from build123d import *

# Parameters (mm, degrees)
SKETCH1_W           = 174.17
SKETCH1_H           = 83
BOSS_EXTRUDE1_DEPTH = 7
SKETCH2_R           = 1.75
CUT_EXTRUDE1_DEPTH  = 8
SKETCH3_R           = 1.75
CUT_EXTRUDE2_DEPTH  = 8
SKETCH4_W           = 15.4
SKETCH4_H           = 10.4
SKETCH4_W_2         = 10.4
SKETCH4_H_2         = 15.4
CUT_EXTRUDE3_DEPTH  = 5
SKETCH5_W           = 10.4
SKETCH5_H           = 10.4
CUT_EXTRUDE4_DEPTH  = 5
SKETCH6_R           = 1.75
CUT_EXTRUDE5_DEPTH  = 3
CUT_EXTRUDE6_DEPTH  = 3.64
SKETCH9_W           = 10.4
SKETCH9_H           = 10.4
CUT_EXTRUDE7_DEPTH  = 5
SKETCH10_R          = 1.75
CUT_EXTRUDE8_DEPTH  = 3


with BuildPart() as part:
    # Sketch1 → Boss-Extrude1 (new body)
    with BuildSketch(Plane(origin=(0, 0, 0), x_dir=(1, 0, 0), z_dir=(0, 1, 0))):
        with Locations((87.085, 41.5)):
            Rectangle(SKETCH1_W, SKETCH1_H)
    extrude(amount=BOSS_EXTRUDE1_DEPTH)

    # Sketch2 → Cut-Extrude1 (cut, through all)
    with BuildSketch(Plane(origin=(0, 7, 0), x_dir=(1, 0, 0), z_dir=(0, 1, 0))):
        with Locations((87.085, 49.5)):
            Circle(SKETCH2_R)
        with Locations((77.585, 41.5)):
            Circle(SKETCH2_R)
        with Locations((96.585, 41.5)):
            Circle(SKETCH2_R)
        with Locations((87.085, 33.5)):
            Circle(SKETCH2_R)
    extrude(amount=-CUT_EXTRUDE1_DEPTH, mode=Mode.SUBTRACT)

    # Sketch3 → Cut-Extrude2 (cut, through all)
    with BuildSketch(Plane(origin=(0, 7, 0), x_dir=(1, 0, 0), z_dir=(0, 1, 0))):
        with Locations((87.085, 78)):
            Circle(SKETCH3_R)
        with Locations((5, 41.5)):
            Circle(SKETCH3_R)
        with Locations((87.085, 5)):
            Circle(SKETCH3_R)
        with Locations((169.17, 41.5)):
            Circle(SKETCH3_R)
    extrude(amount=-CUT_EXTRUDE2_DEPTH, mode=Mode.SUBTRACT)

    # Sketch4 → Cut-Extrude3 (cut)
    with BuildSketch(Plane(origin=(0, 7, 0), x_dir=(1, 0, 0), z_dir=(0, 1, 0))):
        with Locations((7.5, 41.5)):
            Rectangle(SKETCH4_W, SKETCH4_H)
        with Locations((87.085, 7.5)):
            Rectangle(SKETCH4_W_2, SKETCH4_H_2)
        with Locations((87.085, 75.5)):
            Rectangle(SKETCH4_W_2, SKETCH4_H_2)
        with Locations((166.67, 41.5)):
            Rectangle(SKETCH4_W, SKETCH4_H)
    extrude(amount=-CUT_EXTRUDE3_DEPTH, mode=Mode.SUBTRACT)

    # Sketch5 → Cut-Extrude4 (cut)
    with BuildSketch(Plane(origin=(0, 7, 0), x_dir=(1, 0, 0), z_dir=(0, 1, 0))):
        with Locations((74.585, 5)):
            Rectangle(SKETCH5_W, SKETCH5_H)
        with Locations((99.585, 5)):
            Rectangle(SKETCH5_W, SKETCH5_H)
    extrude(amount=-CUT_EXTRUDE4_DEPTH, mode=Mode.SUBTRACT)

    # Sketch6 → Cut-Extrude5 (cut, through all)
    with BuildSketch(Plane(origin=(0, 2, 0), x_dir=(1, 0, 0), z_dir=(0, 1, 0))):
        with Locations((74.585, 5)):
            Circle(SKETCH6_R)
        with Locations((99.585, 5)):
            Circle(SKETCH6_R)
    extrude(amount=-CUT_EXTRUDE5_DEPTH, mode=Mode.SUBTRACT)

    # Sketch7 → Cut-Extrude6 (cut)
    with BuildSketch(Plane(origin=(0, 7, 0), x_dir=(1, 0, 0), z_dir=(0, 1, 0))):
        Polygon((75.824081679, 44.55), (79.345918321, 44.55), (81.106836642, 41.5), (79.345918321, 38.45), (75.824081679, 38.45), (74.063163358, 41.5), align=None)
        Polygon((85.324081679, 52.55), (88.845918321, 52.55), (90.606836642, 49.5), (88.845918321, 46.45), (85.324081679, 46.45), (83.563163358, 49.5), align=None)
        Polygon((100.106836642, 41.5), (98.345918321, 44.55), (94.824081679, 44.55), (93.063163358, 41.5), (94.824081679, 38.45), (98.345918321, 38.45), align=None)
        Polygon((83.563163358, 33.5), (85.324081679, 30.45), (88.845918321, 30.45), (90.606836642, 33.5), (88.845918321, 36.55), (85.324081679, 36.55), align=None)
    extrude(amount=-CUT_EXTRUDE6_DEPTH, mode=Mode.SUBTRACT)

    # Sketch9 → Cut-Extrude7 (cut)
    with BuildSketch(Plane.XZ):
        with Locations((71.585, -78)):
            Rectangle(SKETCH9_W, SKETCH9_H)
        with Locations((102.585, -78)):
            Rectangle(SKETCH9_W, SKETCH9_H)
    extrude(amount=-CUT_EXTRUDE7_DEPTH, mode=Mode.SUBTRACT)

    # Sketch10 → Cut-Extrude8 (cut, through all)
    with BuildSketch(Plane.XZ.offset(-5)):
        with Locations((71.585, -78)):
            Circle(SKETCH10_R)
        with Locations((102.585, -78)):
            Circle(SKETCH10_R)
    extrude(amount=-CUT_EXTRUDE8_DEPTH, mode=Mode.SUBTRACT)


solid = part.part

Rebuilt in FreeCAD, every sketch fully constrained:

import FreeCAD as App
import Part
import Sketcher
from FreeCAD import Vector
Q = App.Units.Quantity

doc = App.newDocument("Part")
body = doc.addObject("PartDesign::Body", "Body")

# Sketch on XZ plane
sketch1 = doc.addObject("Sketcher::SketchObject", "Sketch")
body.addObject(sketch1)
sketch1.AttachmentSupport = (doc.XZ_Plane, [""])
sketch1.MapMode = "FlatFace"
sketch1.addGeometry(Part.LineSegment(Vector(0, -83, 0), Vector(0, 0, 0)), False)
sketch1.addGeometry(Part.LineSegment(Vector(0, 0, 0), Vector(174, 0, 0)), False)
sketch1.addGeometry(Part.LineSegment(Vector(174, 0, 0), Vector(174, -83, 0)), False)
sketch1.addGeometry(Part.LineSegment(Vector(174, -83, 0), Vector(0, -83, 0)), False)
sketch1.addConstraint(Sketcher.Constraint("Coincident", 0, 2, 1, 1))
sketch1.addConstraint(Sketcher.Constraint("Coincident", 1, 2, 2, 1))
sketch1.addConstraint(Sketcher.Constraint("Coincident", 2, 2, 3, 1))
sketch1.addConstraint(Sketcher.Constraint("Coincident", 3, 2, 0, 1))
sketch1.addConstraint(Sketcher.Constraint("Vertical", 0))
sketch1.addConstraint(Sketcher.Constraint("Horizontal", 1))
sketch1.addConstraint(Sketcher.Constraint("Vertical", 2))
sketch1.addConstraint(Sketcher.Constraint("Horizontal", 3))
sketch1.addConstraint(Sketcher.Constraint("Coincident", 0, 2, -1, 1))
sketch1.addConstraint(Sketcher.Constraint("DistanceY", 0, 1, 0, 2, Q("83 mm")))
sketch1.addConstraint(Sketcher.Constraint("DistanceX", 1, 1, 1, 2, Q("174.17 mm")))
pad1 = doc.addObject("PartDesign::Pad", "Pad")
body.addObject(pad1)
pad1.Profile = sketch1
pad1.Length = 7
pad1.Reversed = True

# Sketch on XZ plane
sketch2 = doc.addObject("Sketcher::SketchObject", "Sketch001")
body.addObject(sketch2)
sketch2.AttachmentSupport = (doc.XZ_Plane, [""])
sketch2.MapMode = "FlatFace"
sketch2.AttachmentOffset = App.Placement(Vector(0, 0, -7), App.Rotation())
sketch2.addGeometry(Part.Circle(Vector(87.1, -49.5, 0), Vector(0, 0, 1), 1.8), False)
sketch2.addGeometry(Part.Circle(Vector(77.6, -41.5, 0), Vector(0, 0, 1), 1.8), False)
sketch2.addGeometry(Part.Circle(Vector(96.6, -41.5, 0), Vector(0, 0, 1), 1.8), False)
sketch2.addGeometry(Part.Circle(Vector(87.1, -33.5, 0), Vector(0, 0, 1), 1.8), False)
sketch2.addConstraint(Sketcher.Constraint("Equal", 0, 1))
sketch2.addConstraint(Sketcher.Constraint("Equal", 1, 2))
sketch2.addConstraint(Sketcher.Constraint("Equal", 2, 3))
sketch2.addConstraint(Sketcher.Constraint("Horizontal", 1, 3, 2, 3))
sketch2.addConstraint(Sketcher.Constraint("Vertical", 0, 3, 3, 3))
sketch2.addConstraint(Sketcher.Constraint("Diameter", 0, Q("3.5 mm")))
sketch2.addConstraint(Sketcher.Constraint("DistanceY", 0, 3, 1, 3, Q("8 mm")))
sketch2.addConstraint(Sketcher.Constraint("DistanceX", 1, 3, 2, 3, Q("19 mm")))
sketch2.addConstraint(Sketcher.Constraint("DistanceY", 1, 3, 3, 3, Q("8 mm")))
sketch2.addConstraint(Sketcher.Constraint("DistanceY", 0, 3, -1, 1, Q("49.5 mm")))
sketch2.addConstraint(Sketcher.Constraint("DistanceX", 1, 3, 0, 3, Q("9.5 mm")))
sketch2.addConstraint(Sketcher.Constraint("DistanceX", -1, 1, 0, 3, Q("87.085 mm")))
pocket1 = doc.addObject("PartDesign::Pocket", "Pocket")
body.addObject(pocket1)
pocket1.Profile = sketch2
pocket1.Type = "ThroughAll"
pocket1.Reversed = True

# Sketch on XZ plane
sketch3 = doc.addObject("Sketcher::SketchObject", "Sketch002")
body.addObject(sketch3)
sketch3.AttachmentSupport = (doc.XZ_Plane, [""])
sketch3.MapMode = "FlatFace"
sketch3.AttachmentOffset = App.Placement(Vector(0, 0, -7), App.Rotation())
sketch3.addGeometry(Part.Circle(Vector(87.1, -78, 0), Vector(0, 0, 1), 1.8), False)
sketch3.addGeometry(Part.Circle(Vector(5, -41.5, 0), Vector(0, 0, 1), 1.8), False)
sketch3.addGeometry(Part.Circle(Vector(87.1, -5, 0), Vector(0, 0, 1), 1.8), False)
sketch3.addGeometry(Part.Circle(Vector(169.2, -41.5, 0), Vector(0, 0, 1), 1.8), False)
sketch3.addConstraint(Sketcher.Constraint("Equal", 0, 1))
sketch3.addConstraint(Sketcher.Constraint("Equal", 1, 2))
sketch3.addConstraint(Sketcher.Constraint("Equal", 2, 3))
sketch3.addConstraint(Sketcher.Constraint("Horizontal", 1, 3, 3, 3))
sketch3.addConstraint(Sketcher.Constraint("Vertical", 0, 3, 2, 3))
sketch3.addConstraint(Sketcher.Constraint("Diameter", 0, Q("3.5 mm")))
sketch3.addConstraint(Sketcher.Constraint("DistanceY", 0, 3, -1, 1, Q("78 mm")))
sketch3.addConstraint(Sketcher.Constraint("DistanceX", -1, 1, 1, 3, Q("5 mm")))
sketch3.addConstraint(Sketcher.Constraint("DistanceY", 2, 3, -1, 1, Q("5 mm")))
sketch3.addConstraint(Sketcher.Constraint("DistanceY", 1, 3, -1, 1, Q("41.5 mm")))
sketch3.addConstraint(Sketcher.Constraint("DistanceX", -1, 1, 3, 3, Q("169.17 mm")))
sketch3.addConstraint(Sketcher.Constraint("DistanceX", -1, 1, 0, 3, Q("87.085 mm")))
pocket2 = doc.addObject("PartDesign::Pocket", "Pocket001")
body.addObject(pocket2)
pocket2.Profile = sketch3
pocket2.Type = "ThroughAll"
pocket2.Reversed = True

# Sketch on XZ plane
sketch4 = doc.addObject("Sketcher::SketchObject", "Sketch003")
body.addObject(sketch4)
sketch4.AttachmentSupport = (doc.XZ_Plane, [""])
sketch4.MapMode = "FlatFace"
sketch4.AttachmentOffset = App.Placement(Vector(0, 0, -7), App.Rotation())
sketch4.addGeometry(Part.LineSegment(Vector(0, -47, 0), Vector(0, -36, 0)), False)
sketch4.addGeometry(Part.LineSegment(Vector(0, -36, 0), Vector(15, -36, 0)), False)
sketch4.addGeometry(Part.LineSegment(Vector(15, -36, 0), Vector(15, -47, 0)), False)
sketch4.addGeometry(Part.LineSegment(Vector(15, -47, 0), Vector(0, -47, 0)), False)
sketch4.addGeometry(Part.LineSegment(Vector(82, -15, 0), Vector(82, 0, 0)), False)
sketch4.addGeometry(Part.LineSegment(Vector(82, 0, 0), Vector(92, 0, 0)), False)
sketch4.addGeometry(Part.LineSegment(Vector(92, 0, 0), Vector(92, -15, 0)), False)
sketch4.addGeometry(Part.LineSegment(Vector(92, -15, 0), Vector(82, -15, 0)), False)
sketch4.addGeometry(Part.LineSegment(Vector(82, -83, 0), Vector(82, -68, 0)), False)
sketch4.addGeometry(Part.LineSegment(Vector(82, -68, 0), Vector(92, -68, 0)), False)
sketch4.addGeometry(Part.LineSegment(Vector(92, -68, 0), Vector(92, -83, 0)), False)
sketch4.addGeometry(Part.LineSegment(Vector(92, -83, 0), Vector(82, -83, 0)), False)
sketch4.addGeometry(Part.LineSegment(Vector(159, -47, 0), Vector(159, -36, 0)), False)
sketch4.addGeometry(Part.LineSegment(Vector(159, -36, 0), Vector(174, -36, 0)), False)
sketch4.addGeometry(Part.LineSegment(Vector(174, -36, 0), Vector(174, -47, 0)), False)
sketch4.addGeometry(Part.LineSegment(Vector(174, -47, 0), Vector(159, -47, 0)), False)
sketch4.addConstraint(Sketcher.Constraint("Coincident", 0, 2, 1, 1))
sketch4.addConstraint(Sketcher.Constraint("Coincident", 1, 2, 2, 1))
sketch4.addConstraint(Sketcher.Constraint("Coincident", 2, 2, 3, 1))
sketch4.addConstraint(Sketcher.Constraint("Coincident", 3, 2, 0, 1))
sketch4.addConstraint(Sketcher.Constraint("Coincident", 4, 2, 5, 1))
sketch4.addConstraint(Sketcher.Constraint("Coincident", 5, 2, 6, 1))
sketch4.addConstraint(Sketcher.Constraint("Coincident", 6, 2, 7, 1))
sketch4.addConstraint(Sketcher.Constraint("Coincident", 7, 2, 4, 1))
sketch4.addConstraint(Sketcher.Constraint("Coincident", 8, 2, 9, 1))
sketch4.addConstraint(Sketcher.Constraint("Coincident", 9, 2, 10, 1))
sketch4.addConstraint(Sketcher.Constraint("Coincident", 10, 2, 11, 1))
sketch4.addConstraint(Sketcher.Constraint("Coincident", 11, 2, 8, 1))
sketch4.addConstraint(Sketcher.Constraint("Coincident", 12, 2, 13, 1))
sketch4.addConstraint(Sketcher.Constraint("Coincident", 13, 2, 14, 1))
sketch4.addConstraint(Sketcher.Constraint("Coincident", 14, 2, 15, 1))
sketch4.addConstraint(Sketcher.Constraint("Coincident", 15, 2, 12, 1))
sketch4.addConstraint(Sketcher.Constraint("Vertical", 0))
sketch4.addConstraint(Sketcher.Constraint("Horizontal", 1))
sketch4.addConstraint(Sketcher.Constraint("Vertical", 2))
sketch4.addConstraint(Sketcher.Constraint("Horizontal", 3))
sketch4.addConstraint(Sketcher.Constraint("Vertical", 4))
sketch4.addConstraint(Sketcher.Constraint("Horizontal", 5))
sketch4.addConstraint(Sketcher.Constraint("Vertical", 6))
sketch4.addConstraint(Sketcher.Constraint("Horizontal", 7))
sketch4.addConstraint(Sketcher.Constraint("Vertical", 8))
sketch4.addConstraint(Sketcher.Constraint("Horizontal", 9))
sketch4.addConstraint(Sketcher.Constraint("Vertical", 10))
sketch4.addConstraint(Sketcher.Constraint("Horizontal", 11))
sketch4.addConstraint(Sketcher.Constraint("Vertical", 12))
sketch4.addConstraint(Sketcher.Constraint("Horizontal", 13))
sketch4.addConstraint(Sketcher.Constraint("Vertical", 14))
sketch4.addConstraint(Sketcher.Constraint("Horizontal", 15))
sketch4.addConstraint(Sketcher.Constraint("Horizontal", 1, 2, 12, 2))
sketch4.addConstraint(Sketcher.Constraint("Horizontal", 3, 2, 14, 2))
sketch4.addConstraint(Sketcher.Constraint("Vertical", 7, 2, 8, 2))
sketch4.addConstraint(Sketcher.Constraint("Vertical", 6, 2, 9, 2))
sketch4.addConstraint(Sketcher.Constraint("Equal", 3, 13))
sketch4.addConstraint(Sketcher.Constraint("Equal", 11, 0))
sketch4.addConstraint(Sketcher.Constraint("Equal", 15, 4))
sketch4.addConstraint(Sketcher.Constraint("Equal", 6, 8))
sketch4.addConstraint(Sketcher.Constraint("DistanceX", 1, 1, 1, 2, Q("15.4 mm")))
sketch4.addConstraint(Sketcher.Constraint("DistanceX", 5, 1, 5, 2, Q("10.4 mm")))
sketch4.addConstraint(Sketcher.Constraint("DistanceY", 8, 2, 4, 2, Q("68 mm")))
sketch4.addConstraint(Sketcher.Constraint("DistanceX", 0, 2, -1, 1, Q("0.2 mm")))
sketch4.addConstraint(Sketcher.Constraint("DistanceY", 0, 2, -1, 1, Q("36.3 mm")))
sketch4.addConstraint(Sketcher.Constraint("DistanceY", -1, 1, 4, 2, Q("0.2 mm")))
sketch4.addConstraint(Sketcher.Constraint("DistanceX", -1, 1, 12, 2, Q("158.97 mm")))
sketch4.addConstraint(Sketcher.Constraint("DistanceX", -1, 1, 4, 2, Q("81.885 mm")))
pocket3 = doc.addObject("PartDesign::Pocket", "Pocket002")
body.addObject(pocket3)
pocket3.Profile = sketch4
pocket3.Length = 5
pocket3.Reversed = True

# Sketch on XZ plane
sketch5 = doc.addObject("Sketcher::SketchObject", "Sketch004")
body.addObject(sketch5)
sketch5.AttachmentSupport = (doc.XZ_Plane, [""])
sketch5.MapMode = "FlatFace"
sketch5.AttachmentOffset = App.Placement(Vector(0, 0, -7), App.Rotation())
sketch5.addGeometry(Part.LineSegment(Vector(69, -10, 0), Vector(69, 0, 0)), False)
sketch5.addGeometry(Part.LineSegment(Vector(69, 0, 0), Vector(80, 0, 0)), False)
sketch5.addGeometry(Part.LineSegment(Vector(80, 0, 0), Vector(80, -10, 0)), False)
sketch5.addGeometry(Part.LineSegment(Vector(80, -10, 0), Vector(69, -10, 0)), False)
sketch5.addGeometry(Part.LineSegment(Vector(94, -10, 0), Vector(94, 0, 0)), False)
sketch5.addGeometry(Part.LineSegment(Vector(94, 0, 0), Vector(105, 0, 0)), False)
sketch5.addGeometry(Part.LineSegment(Vector(105, 0, 0), Vector(105, -10, 0)), False)
sketch5.addGeometry(Part.LineSegment(Vector(105, -10, 0), Vector(94, -10, 0)), False)
sketch5.addConstraint(Sketcher.Constraint("Coincident", 0, 2, 1, 1))
sketch5.addConstraint(Sketcher.Constraint("Coincident", 1, 2, 2, 1))
sketch5.addConstraint(Sketcher.Constraint("Coincident", 2, 2, 3, 1))
sketch5.addConstraint(Sketcher.Constraint("Coincident", 3, 2, 0, 1))
sketch5.addConstraint(Sketcher.Constraint("Coincident", 4, 2, 5, 1))
sketch5.addConstraint(Sketcher.Constraint("Coincident", 5, 2, 6, 1))
sketch5.addConstraint(Sketcher.Constraint("Coincident", 6, 2, 7, 1))
sketch5.addConstraint(Sketcher.Constraint("Coincident", 7, 2, 4, 1))
sketch5.addConstraint(Sketcher.Constraint("Vertical", 0))
sketch5.addConstraint(Sketcher.Constraint("Horizontal", 1))
sketch5.addConstraint(Sketcher.Constraint("Vertical", 2))
sketch5.addConstraint(Sketcher.Constraint("Horizontal", 3))
sketch5.addConstraint(Sketcher.Constraint("Vertical", 4))
sketch5.addConstraint(Sketcher.Constraint("Horizontal", 5))
sketch5.addConstraint(Sketcher.Constraint("Vertical", 6))
sketch5.addConstraint(Sketcher.Constraint("Horizontal", 7))
sketch5.addConstraint(Sketcher.Constraint("Horizontal", 1, 2, 4, 2))
sketch5.addConstraint(Sketcher.Constraint("Horizontal", 3, 2, 6, 2))
sketch5.addConstraint(Sketcher.Constraint("Equal", 3, 5))
sketch5.addConstraint(Sketcher.Constraint("Equal", 7, 0))
sketch5.addConstraint(Sketcher.Constraint("DistanceX", 1, 1, 1, 2, Q("10.4 mm")))
sketch5.addConstraint(Sketcher.Constraint("DistanceX", 0, 2, 4, 2, Q("25 mm")))
sketch5.addConstraint(Sketcher.Constraint("DistanceY", -1, 1, 0, 2, Q("0.2 mm")))
sketch5.addConstraint(Sketcher.Constraint("DistanceX", -1, 1, 0, 2, Q("69.385 mm")))
pocket4 = doc.addObject("PartDesign::Pocket", "Pocket003")
body.addObject(pocket4)
pocket4.Profile = sketch5
pocket4.Length = 5
pocket4.Reversed = True

# Sketch on XZ plane
sketch6 = doc.addObject("Sketcher::SketchObject", "Sketch005")
body.addObject(sketch6)
sketch6.AttachmentSupport = (doc.XZ_Plane, [""])
sketch6.MapMode = "FlatFace"
sketch6.AttachmentOffset = App.Placement(Vector(0, 0, -2), App.Rotation())
sketch6.addGeometry(Part.Circle(Vector(74.6, -5, 0), Vector(0, 0, 1), 1.8), False)
sketch6.addGeometry(Part.Circle(Vector(99.6, -5, 0), Vector(0, 0, 1), 1.8), False)
sketch6.addConstraint(Sketcher.Constraint("Equal", 0, 1))
sketch6.addConstraint(Sketcher.Constraint("Horizontal", 0, 3, 1, 3))
sketch6.addConstraint(Sketcher.Constraint("Diameter", 0, Q("3.5 mm")))
sketch6.addConstraint(Sketcher.Constraint("DistanceY", 0, 3, -1, 1, Q("5 mm")))
sketch6.addConstraint(Sketcher.Constraint("DistanceX", 0, 3, 1, 3, Q("25 mm")))
sketch6.addConstraint(Sketcher.Constraint("DistanceX", -1, 1, 0, 3, Q("74.585 mm")))
pocket5 = doc.addObject("PartDesign::Pocket", "Pocket004")
body.addObject(pocket5)
pocket5.Profile = sketch6
pocket5.Type = "ThroughAll"
pocket5.Reversed = True

# Sketch on XZ plane
sketch7 = doc.addObject("Sketcher::SketchObject", "Sketch006")
body.addObject(sketch7)
sketch7.AttachmentSupport = (doc.XZ_Plane, [""])
sketch7.MapMode = "FlatFace"
sketch7.AttachmentOffset = App.Placement(Vector(0, 0, -7), App.Rotation())
sketch7.addGeometry(Part.LineSegment(Vector(79.3, -44.5, 0), Vector(75.8, -44.5, 0)), False)
sketch7.addGeometry(Part.LineSegment(Vector(75.8, -44.5, 0), Vector(74.1, -41.5, 0)), False)
sketch7.addGeometry(Part.LineSegment(Vector(74.1, -41.5, 0), Vector(75.8, -38.5, 0)), False)
sketch7.addGeometry(Part.LineSegment(Vector(75.8, -38.5, 0), Vector(79.3, -38.5, 0)), False)
sketch7.addGeometry(Part.LineSegment(Vector(79.3, -38.5, 0), Vector(81.1, -41.5, 0)), False)
sketch7.addGeometry(Part.LineSegment(Vector(81.1, -41.5, 0), Vector(79.3, -44.5, 0)), False)
sketch7.addGeometry(Part.LineSegment(Vector(88.8, -52.5, 0), Vector(85.3, -52.5, 0)), False)
sketch7.addGeometry(Part.LineSegment(Vector(85.3, -52.5, 0), Vector(83.6, -49.5, 0)), False)
sketch7.addGeometry(Part.LineSegment(Vector(83.6, -49.5, 0), Vector(85.3, -46.5, 0)), False)
sketch7.addGeometry(Part.LineSegment(Vector(85.3, -46.5, 0), Vector(88.8, -46.5, 0)), False)
sketch7.addGeometry(Part.LineSegment(Vector(88.8, -46.5, 0), Vector(90.6, -49.5, 0)), False)
sketch7.addGeometry(Part.LineSegment(Vector(90.6, -49.5, 0), Vector(88.8, -52.5, 0)), False)
sketch7.addGeometry(Part.LineSegment(Vector(100.1, -41.5, 0), Vector(98.3, -44.5, 0)), False)
sketch7.addGeometry(Part.LineSegment(Vector(98.3, -44.5, 0), Vector(94.8, -44.5, 0)), False)
sketch7.addGeometry(Part.LineSegment(Vector(94.8, -44.5, 0), Vector(93.1, -41.5, 0)), False)
sketch7.addGeometry(Part.LineSegment(Vector(93.1, -41.5, 0), Vector(94.8, -38.5, 0)), False)
sketch7.addGeometry(Part.LineSegment(Vector(94.8, -38.5, 0), Vector(98.3, -38.5, 0)), False)
sketch7.addGeometry(Part.LineSegment(Vector(98.3, -38.5, 0), Vector(100.1, -41.5, 0)), False)
sketch7.addGeometry(Part.LineSegment(Vector(83.6, -33.5, 0), Vector(85.3, -30.4, 0)), False)
sketch7.addGeometry(Part.LineSegment(Vector(85.3, -30.4, 0), Vector(88.8, -30.4, 0)), False)
sketch7.addGeometry(Part.LineSegment(Vector(88.8, -30.4, 0), Vector(90.6, -33.5, 0)), False)
sketch7.addGeometry(Part.LineSegment(Vector(90.6, -33.5, 0), Vector(88.8, -36.5, 0)), False)
sketch7.addGeometry(Part.LineSegment(Vector(88.8, -36.5, 0), Vector(85.3, -36.5, 0)), False)
sketch7.addGeometry(Part.LineSegment(Vector(85.3, -36.5, 0), Vector(83.6, -33.5, 0)), False)
sketch7.addConstraint(Sketcher.Constraint("Coincident", 0, 2, 1, 1))
sketch7.addConstraint(Sketcher.Constraint("Coincident", 1, 2, 2, 1))
sketch7.addConstraint(Sketcher.Constraint("Coincident", 2, 2, 3, 1))
sketch7.addConstraint(Sketcher.Constraint("Coincident", 3, 2, 4, 1))
sketch7.addConstraint(Sketcher.Constraint("Coincident", 4, 2, 5, 1))
sketch7.addConstraint(Sketcher.Constraint("Coincident", 5, 2, 0, 1))
sketch7.addConstraint(Sketcher.Constraint("Coincident", 6, 2, 7, 1))
sketch7.addConstraint(Sketcher.Constraint("Coincident", 7, 2, 8, 1))
sketch7.addConstraint(Sketcher.Constraint("Coincident", 8, 2, 9, 1))
sketch7.addConstraint(Sketcher.Constraint("Coincident", 9, 2, 10, 1))
sketch7.addConstraint(Sketcher.Constraint("Coincident", 10, 2, 11, 1))
sketch7.addConstraint(Sketcher.Constraint("Coincident", 11, 2, 6, 1))
sketch7.addConstraint(Sketcher.Constraint("Coincident", 12, 2, 13, 1))
sketch7.addConstraint(Sketcher.Constraint("Coincident", 13, 2, 14, 1))
sketch7.addConstraint(Sketcher.Constraint("Coincident", 14, 2, 15, 1))
sketch7.addConstraint(Sketcher.Constraint("Coincident", 15, 2, 16, 1))
sketch7.addConstraint(Sketcher.Constraint("Coincident", 16, 2, 17, 1))
sketch7.addConstraint(Sketcher.Constraint("Coincident", 17, 2, 12, 1))
sketch7.addConstraint(Sketcher.Constraint("Coincident", 18, 2, 19, 1))
sketch7.addConstraint(Sketcher.Constraint("Coincident", 19, 2, 20, 1))
sketch7.addConstraint(Sketcher.Constraint("Coincident", 20, 2, 21, 1))
sketch7.addConstraint(Sketcher.Constraint("Coincident", 21, 2, 22, 1))
sketch7.addConstraint(Sketcher.Constraint("Coincident", 22, 2, 23, 1))
sketch7.addConstraint(Sketcher.Constraint("Coincident", 23, 2, 18, 1))
sketch7.addConstraint(Sketcher.Constraint("Horizontal", 0))
sketch7.addConstraint(Sketcher.Constraint("Horizontal", 3))
sketch7.addConstraint(Sketcher.Constraint("Horizontal", 6))
sketch7.addConstraint(Sketcher.Constraint("Horizontal", 9))
sketch7.addConstraint(Sketcher.Constraint("Horizontal", 13))
sketch7.addConstraint(Sketcher.Constraint("Horizontal", 16))
sketch7.addConstraint(Sketcher.Constraint("Horizontal", 19))
sketch7.addConstraint(Sketcher.Constraint("Horizontal", 22))
sketch7.addConstraint(Sketcher.Constraint("Parallel", 1, 4))
sketch7.addConstraint(Sketcher.Constraint("Parallel", 2, 5))
sketch7.addConstraint(Sketcher.Constraint("Parallel", 4, 7))
sketch7.addConstraint(Sketcher.Constraint("Parallel", 5, 8))
sketch7.addConstraint(Sketcher.Constraint("Parallel", 7, 10))
sketch7.addConstraint(Sketcher.Constraint("Parallel", 8, 11))
sketch7.addConstraint(Sketcher.Constraint("Parallel", 11, 12))
sketch7.addConstraint(Sketcher.Constraint("Parallel", 10, 14))
sketch7.addConstraint(Sketcher.Constraint("Parallel", 12, 15))
sketch7.addConstraint(Sketcher.Constraint("Parallel", 14, 17))
sketch7.addConstraint(Sketcher.Constraint("Parallel", 15, 18))
sketch7.addConstraint(Sketcher.Constraint("Parallel", 17, 20))
sketch7.addConstraint(Sketcher.Constraint("Parallel", 18, 21))
sketch7.addConstraint(Sketcher.Constraint("Parallel", 20, 23))
sketch7.addConstraint(Sketcher.Constraint("Horizontal", 1, 2, 4, 2))
sketch7.addConstraint(Sketcher.Constraint("Horizontal", 7, 2, 10, 2))
sketch7.addConstraint(Sketcher.Constraint("Horizontal", 5, 2, 12, 2))
sketch7.addConstraint(Sketcher.Constraint("Horizontal", 4, 2, 14, 2))
sketch7.addConstraint(Sketcher.Constraint("Horizontal", 3, 2, 15, 2))
sketch7.addConstraint(Sketcher.Constraint("Horizontal", 14, 2, 17, 2))
sketch7.addConstraint(Sketcher.Constraint("Horizontal", 20, 2, 23, 2))
sketch7.addConstraint(Sketcher.Constraint("Vertical", 0, 2, 2, 2))
sketch7.addConstraint(Sketcher.Constraint("Vertical", 3, 2, 5, 2))
sketch7.addConstraint(Sketcher.Constraint("Vertical", 6, 2, 8, 2))
sketch7.addConstraint(Sketcher.Constraint("Vertical", 8, 2, 18, 2))
sketch7.addConstraint(Sketcher.Constraint("Vertical", 11, 2, 19, 2))
sketch7.addConstraint(Sketcher.Constraint("Vertical", 10, 2, 20, 2))
sketch7.addConstraint(Sketcher.Constraint("Vertical", 19, 2, 21, 2))
sketch7.addConstraint(Sketcher.Constraint("Equal", 3, 6))
sketch7.addConstraint(Sketcher.Constraint("Equal", 9, 13))
sketch7.addConstraint(Sketcher.Constraint("Equal", 5, 7))
sketch7.addConstraint(Sketcher.Constraint("Angle", 1, Q("120 deg")))
sketch7.addConstraint(Sketcher.Constraint("DistanceY", 6, 2, 5, 2, Q("8 mm")))
sketch7.addConstraint(Sketcher.Constraint("DistanceY", 3, 2, 18, 2, Q("8 mm")))
sketch7.addConstraint(Sketcher.Constraint("DistanceY", 1, 2, -1, 1, Q("41.5 mm")))
sketch7.addConstraint(Sketcher.Constraint("DistanceY", 0, 2, 2, 2, Q("6.1 mm")))
sketch7.addConstraint(Sketcher.Constraint("DistanceX", 0, 2, 6, 2, Q("9.5 mm")))
sketch7.addConstraint(Sketcher.Constraint("DistanceX", 9, 2, 12, 2, Q("9.5 mm")))
sketch7.addConstraint(Sketcher.Constraint("DistanceX", 0, 2, 0, 1, Q("3.521837 mm")))
sketch7.addConstraint(Sketcher.Constraint("DistanceX", -1, 1, 0, 2, Q("75.824082 mm")))
pocket6 = doc.addObject("PartDesign::Pocket", "Pocket005")
body.addObject(pocket6)
pocket6.Profile = sketch7
pocket6.Length = 3.64
pocket6.Reversed = True

# Sketch on XZ plane
sketch8 = doc.addObject("Sketcher::SketchObject", "Sketch007")
body.addObject(sketch8)
sketch8.AttachmentSupport = (doc.XZ_Plane, [""])
sketch8.MapMode = "FlatFace"
sketch8.addGeometry(Part.LineSegment(Vector(66, -73, 0), Vector(66, -83, 0)), False)
sketch8.addGeometry(Part.LineSegment(Vector(66, -83, 0), Vector(77, -83, 0)), False)
sketch8.addGeometry(Part.LineSegment(Vector(77, -83, 0), Vector(77, -73, 0)), False)
sketch8.addGeometry(Part.LineSegment(Vector(77, -73, 0), Vector(66, -73, 0)), False)
sketch8.addGeometry(Part.LineSegment(Vector(97, -73, 0), Vector(97, -83, 0)), False)
sketch8.addGeometry(Part.LineSegment(Vector(97, -83, 0), Vector(108, -83, 0)), False)
sketch8.addGeometry(Part.LineSegment(Vector(108, -83, 0), Vector(108, -73, 0)), False)
sketch8.addGeometry(Part.LineSegment(Vector(108, -73, 0), Vector(97, -73, 0)), False)
sketch8.addConstraint(Sketcher.Constraint("Coincident", 0, 2, 1, 1))
sketch8.addConstraint(Sketcher.Constraint("Coincident", 1, 2, 2, 1))
sketch8.addConstraint(Sketcher.Constraint("Coincident", 2, 2, 3, 1))
sketch8.addConstraint(Sketcher.Constraint("Coincident", 3, 2, 0, 1))
sketch8.addConstraint(Sketcher.Constraint("Coincident", 4, 2, 5, 1))
sketch8.addConstraint(Sketcher.Constraint("Coincident", 5, 2, 6, 1))
sketch8.addConstraint(Sketcher.Constraint("Coincident", 6, 2, 7, 1))
sketch8.addConstraint(Sketcher.Constraint("Coincident", 7, 2, 4, 1))
sketch8.addConstraint(Sketcher.Constraint("Vertical", 0))
sketch8.addConstraint(Sketcher.Constraint("Horizontal", 1))
sketch8.addConstraint(Sketcher.Constraint("Vertical", 2))
sketch8.addConstraint(Sketcher.Constraint("Horizontal", 3))
sketch8.addConstraint(Sketcher.Constraint("Vertical", 4))
sketch8.addConstraint(Sketcher.Constraint("Horizontal", 5))
sketch8.addConstraint(Sketcher.Constraint("Vertical", 6))
sketch8.addConstraint(Sketcher.Constraint("Horizontal", 7))
sketch8.addConstraint(Sketcher.Constraint("Horizontal", 1, 2, 4, 2))
sketch8.addConstraint(Sketcher.Constraint("Horizontal", 3, 2, 6, 2))
sketch8.addConstraint(Sketcher.Constraint("Equal", 3, 5))
sketch8.addConstraint(Sketcher.Constraint("Equal", 7, 0))
sketch8.addConstraint(Sketcher.Constraint("DistanceX", 1, 1, 1, 2, Q("10.4 mm")))
sketch8.addConstraint(Sketcher.Constraint("DistanceX", 0, 2, 4, 2, Q("31 mm")))
sketch8.addConstraint(Sketcher.Constraint("DistanceY", 0, 2, -1, 1, Q("83.2 mm")))
sketch8.addConstraint(Sketcher.Constraint("DistanceX", -1, 1, 0, 2, Q("66.385 mm")))
pocket7 = doc.addObject("PartDesign::Pocket", "Pocket006")
body.addObject(pocket7)
pocket7.Profile = sketch8
pocket7.Length = 5

# Sketch on XZ plane
sketch9 = doc.addObject("Sketcher::SketchObject", "Sketch008")
body.addObject(sketch9)
sketch9.AttachmentSupport = (doc.XZ_Plane, [""])
sketch9.MapMode = "FlatFace"
sketch9.AttachmentOffset = App.Placement(Vector(0, 0, -5), App.Rotation())
sketch9.addGeometry(Part.Circle(Vector(71.6, -78, 0), Vector(0, 0, 1), 1.8), False)
sketch9.addGeometry(Part.Circle(Vector(102.6, -78, 0), Vector(0, 0, 1), 1.8), False)
sketch9.addConstraint(Sketcher.Constraint("Equal", 0, 1))
sketch9.addConstraint(Sketcher.Constraint("Horizontal", 0, 3, 1, 3))
sketch9.addConstraint(Sketcher.Constraint("Diameter", 0, Q("3.5 mm")))
sketch9.addConstraint(Sketcher.Constraint("DistanceY", 0, 3, -1, 1, Q("78 mm")))
sketch9.addConstraint(Sketcher.Constraint("DistanceX", 0, 3, 1, 3, Q("31 mm")))
sketch9.addConstraint(Sketcher.Constraint("DistanceX", -1, 1, 0, 3, Q("71.585 mm")))
pocket8 = doc.addObject("PartDesign::Pocket", "Pocket007")
body.addObject(pocket8)
pocket8.Profile = sketch9
pocket8.Type = "ThroughAll"

doc.recompute()
